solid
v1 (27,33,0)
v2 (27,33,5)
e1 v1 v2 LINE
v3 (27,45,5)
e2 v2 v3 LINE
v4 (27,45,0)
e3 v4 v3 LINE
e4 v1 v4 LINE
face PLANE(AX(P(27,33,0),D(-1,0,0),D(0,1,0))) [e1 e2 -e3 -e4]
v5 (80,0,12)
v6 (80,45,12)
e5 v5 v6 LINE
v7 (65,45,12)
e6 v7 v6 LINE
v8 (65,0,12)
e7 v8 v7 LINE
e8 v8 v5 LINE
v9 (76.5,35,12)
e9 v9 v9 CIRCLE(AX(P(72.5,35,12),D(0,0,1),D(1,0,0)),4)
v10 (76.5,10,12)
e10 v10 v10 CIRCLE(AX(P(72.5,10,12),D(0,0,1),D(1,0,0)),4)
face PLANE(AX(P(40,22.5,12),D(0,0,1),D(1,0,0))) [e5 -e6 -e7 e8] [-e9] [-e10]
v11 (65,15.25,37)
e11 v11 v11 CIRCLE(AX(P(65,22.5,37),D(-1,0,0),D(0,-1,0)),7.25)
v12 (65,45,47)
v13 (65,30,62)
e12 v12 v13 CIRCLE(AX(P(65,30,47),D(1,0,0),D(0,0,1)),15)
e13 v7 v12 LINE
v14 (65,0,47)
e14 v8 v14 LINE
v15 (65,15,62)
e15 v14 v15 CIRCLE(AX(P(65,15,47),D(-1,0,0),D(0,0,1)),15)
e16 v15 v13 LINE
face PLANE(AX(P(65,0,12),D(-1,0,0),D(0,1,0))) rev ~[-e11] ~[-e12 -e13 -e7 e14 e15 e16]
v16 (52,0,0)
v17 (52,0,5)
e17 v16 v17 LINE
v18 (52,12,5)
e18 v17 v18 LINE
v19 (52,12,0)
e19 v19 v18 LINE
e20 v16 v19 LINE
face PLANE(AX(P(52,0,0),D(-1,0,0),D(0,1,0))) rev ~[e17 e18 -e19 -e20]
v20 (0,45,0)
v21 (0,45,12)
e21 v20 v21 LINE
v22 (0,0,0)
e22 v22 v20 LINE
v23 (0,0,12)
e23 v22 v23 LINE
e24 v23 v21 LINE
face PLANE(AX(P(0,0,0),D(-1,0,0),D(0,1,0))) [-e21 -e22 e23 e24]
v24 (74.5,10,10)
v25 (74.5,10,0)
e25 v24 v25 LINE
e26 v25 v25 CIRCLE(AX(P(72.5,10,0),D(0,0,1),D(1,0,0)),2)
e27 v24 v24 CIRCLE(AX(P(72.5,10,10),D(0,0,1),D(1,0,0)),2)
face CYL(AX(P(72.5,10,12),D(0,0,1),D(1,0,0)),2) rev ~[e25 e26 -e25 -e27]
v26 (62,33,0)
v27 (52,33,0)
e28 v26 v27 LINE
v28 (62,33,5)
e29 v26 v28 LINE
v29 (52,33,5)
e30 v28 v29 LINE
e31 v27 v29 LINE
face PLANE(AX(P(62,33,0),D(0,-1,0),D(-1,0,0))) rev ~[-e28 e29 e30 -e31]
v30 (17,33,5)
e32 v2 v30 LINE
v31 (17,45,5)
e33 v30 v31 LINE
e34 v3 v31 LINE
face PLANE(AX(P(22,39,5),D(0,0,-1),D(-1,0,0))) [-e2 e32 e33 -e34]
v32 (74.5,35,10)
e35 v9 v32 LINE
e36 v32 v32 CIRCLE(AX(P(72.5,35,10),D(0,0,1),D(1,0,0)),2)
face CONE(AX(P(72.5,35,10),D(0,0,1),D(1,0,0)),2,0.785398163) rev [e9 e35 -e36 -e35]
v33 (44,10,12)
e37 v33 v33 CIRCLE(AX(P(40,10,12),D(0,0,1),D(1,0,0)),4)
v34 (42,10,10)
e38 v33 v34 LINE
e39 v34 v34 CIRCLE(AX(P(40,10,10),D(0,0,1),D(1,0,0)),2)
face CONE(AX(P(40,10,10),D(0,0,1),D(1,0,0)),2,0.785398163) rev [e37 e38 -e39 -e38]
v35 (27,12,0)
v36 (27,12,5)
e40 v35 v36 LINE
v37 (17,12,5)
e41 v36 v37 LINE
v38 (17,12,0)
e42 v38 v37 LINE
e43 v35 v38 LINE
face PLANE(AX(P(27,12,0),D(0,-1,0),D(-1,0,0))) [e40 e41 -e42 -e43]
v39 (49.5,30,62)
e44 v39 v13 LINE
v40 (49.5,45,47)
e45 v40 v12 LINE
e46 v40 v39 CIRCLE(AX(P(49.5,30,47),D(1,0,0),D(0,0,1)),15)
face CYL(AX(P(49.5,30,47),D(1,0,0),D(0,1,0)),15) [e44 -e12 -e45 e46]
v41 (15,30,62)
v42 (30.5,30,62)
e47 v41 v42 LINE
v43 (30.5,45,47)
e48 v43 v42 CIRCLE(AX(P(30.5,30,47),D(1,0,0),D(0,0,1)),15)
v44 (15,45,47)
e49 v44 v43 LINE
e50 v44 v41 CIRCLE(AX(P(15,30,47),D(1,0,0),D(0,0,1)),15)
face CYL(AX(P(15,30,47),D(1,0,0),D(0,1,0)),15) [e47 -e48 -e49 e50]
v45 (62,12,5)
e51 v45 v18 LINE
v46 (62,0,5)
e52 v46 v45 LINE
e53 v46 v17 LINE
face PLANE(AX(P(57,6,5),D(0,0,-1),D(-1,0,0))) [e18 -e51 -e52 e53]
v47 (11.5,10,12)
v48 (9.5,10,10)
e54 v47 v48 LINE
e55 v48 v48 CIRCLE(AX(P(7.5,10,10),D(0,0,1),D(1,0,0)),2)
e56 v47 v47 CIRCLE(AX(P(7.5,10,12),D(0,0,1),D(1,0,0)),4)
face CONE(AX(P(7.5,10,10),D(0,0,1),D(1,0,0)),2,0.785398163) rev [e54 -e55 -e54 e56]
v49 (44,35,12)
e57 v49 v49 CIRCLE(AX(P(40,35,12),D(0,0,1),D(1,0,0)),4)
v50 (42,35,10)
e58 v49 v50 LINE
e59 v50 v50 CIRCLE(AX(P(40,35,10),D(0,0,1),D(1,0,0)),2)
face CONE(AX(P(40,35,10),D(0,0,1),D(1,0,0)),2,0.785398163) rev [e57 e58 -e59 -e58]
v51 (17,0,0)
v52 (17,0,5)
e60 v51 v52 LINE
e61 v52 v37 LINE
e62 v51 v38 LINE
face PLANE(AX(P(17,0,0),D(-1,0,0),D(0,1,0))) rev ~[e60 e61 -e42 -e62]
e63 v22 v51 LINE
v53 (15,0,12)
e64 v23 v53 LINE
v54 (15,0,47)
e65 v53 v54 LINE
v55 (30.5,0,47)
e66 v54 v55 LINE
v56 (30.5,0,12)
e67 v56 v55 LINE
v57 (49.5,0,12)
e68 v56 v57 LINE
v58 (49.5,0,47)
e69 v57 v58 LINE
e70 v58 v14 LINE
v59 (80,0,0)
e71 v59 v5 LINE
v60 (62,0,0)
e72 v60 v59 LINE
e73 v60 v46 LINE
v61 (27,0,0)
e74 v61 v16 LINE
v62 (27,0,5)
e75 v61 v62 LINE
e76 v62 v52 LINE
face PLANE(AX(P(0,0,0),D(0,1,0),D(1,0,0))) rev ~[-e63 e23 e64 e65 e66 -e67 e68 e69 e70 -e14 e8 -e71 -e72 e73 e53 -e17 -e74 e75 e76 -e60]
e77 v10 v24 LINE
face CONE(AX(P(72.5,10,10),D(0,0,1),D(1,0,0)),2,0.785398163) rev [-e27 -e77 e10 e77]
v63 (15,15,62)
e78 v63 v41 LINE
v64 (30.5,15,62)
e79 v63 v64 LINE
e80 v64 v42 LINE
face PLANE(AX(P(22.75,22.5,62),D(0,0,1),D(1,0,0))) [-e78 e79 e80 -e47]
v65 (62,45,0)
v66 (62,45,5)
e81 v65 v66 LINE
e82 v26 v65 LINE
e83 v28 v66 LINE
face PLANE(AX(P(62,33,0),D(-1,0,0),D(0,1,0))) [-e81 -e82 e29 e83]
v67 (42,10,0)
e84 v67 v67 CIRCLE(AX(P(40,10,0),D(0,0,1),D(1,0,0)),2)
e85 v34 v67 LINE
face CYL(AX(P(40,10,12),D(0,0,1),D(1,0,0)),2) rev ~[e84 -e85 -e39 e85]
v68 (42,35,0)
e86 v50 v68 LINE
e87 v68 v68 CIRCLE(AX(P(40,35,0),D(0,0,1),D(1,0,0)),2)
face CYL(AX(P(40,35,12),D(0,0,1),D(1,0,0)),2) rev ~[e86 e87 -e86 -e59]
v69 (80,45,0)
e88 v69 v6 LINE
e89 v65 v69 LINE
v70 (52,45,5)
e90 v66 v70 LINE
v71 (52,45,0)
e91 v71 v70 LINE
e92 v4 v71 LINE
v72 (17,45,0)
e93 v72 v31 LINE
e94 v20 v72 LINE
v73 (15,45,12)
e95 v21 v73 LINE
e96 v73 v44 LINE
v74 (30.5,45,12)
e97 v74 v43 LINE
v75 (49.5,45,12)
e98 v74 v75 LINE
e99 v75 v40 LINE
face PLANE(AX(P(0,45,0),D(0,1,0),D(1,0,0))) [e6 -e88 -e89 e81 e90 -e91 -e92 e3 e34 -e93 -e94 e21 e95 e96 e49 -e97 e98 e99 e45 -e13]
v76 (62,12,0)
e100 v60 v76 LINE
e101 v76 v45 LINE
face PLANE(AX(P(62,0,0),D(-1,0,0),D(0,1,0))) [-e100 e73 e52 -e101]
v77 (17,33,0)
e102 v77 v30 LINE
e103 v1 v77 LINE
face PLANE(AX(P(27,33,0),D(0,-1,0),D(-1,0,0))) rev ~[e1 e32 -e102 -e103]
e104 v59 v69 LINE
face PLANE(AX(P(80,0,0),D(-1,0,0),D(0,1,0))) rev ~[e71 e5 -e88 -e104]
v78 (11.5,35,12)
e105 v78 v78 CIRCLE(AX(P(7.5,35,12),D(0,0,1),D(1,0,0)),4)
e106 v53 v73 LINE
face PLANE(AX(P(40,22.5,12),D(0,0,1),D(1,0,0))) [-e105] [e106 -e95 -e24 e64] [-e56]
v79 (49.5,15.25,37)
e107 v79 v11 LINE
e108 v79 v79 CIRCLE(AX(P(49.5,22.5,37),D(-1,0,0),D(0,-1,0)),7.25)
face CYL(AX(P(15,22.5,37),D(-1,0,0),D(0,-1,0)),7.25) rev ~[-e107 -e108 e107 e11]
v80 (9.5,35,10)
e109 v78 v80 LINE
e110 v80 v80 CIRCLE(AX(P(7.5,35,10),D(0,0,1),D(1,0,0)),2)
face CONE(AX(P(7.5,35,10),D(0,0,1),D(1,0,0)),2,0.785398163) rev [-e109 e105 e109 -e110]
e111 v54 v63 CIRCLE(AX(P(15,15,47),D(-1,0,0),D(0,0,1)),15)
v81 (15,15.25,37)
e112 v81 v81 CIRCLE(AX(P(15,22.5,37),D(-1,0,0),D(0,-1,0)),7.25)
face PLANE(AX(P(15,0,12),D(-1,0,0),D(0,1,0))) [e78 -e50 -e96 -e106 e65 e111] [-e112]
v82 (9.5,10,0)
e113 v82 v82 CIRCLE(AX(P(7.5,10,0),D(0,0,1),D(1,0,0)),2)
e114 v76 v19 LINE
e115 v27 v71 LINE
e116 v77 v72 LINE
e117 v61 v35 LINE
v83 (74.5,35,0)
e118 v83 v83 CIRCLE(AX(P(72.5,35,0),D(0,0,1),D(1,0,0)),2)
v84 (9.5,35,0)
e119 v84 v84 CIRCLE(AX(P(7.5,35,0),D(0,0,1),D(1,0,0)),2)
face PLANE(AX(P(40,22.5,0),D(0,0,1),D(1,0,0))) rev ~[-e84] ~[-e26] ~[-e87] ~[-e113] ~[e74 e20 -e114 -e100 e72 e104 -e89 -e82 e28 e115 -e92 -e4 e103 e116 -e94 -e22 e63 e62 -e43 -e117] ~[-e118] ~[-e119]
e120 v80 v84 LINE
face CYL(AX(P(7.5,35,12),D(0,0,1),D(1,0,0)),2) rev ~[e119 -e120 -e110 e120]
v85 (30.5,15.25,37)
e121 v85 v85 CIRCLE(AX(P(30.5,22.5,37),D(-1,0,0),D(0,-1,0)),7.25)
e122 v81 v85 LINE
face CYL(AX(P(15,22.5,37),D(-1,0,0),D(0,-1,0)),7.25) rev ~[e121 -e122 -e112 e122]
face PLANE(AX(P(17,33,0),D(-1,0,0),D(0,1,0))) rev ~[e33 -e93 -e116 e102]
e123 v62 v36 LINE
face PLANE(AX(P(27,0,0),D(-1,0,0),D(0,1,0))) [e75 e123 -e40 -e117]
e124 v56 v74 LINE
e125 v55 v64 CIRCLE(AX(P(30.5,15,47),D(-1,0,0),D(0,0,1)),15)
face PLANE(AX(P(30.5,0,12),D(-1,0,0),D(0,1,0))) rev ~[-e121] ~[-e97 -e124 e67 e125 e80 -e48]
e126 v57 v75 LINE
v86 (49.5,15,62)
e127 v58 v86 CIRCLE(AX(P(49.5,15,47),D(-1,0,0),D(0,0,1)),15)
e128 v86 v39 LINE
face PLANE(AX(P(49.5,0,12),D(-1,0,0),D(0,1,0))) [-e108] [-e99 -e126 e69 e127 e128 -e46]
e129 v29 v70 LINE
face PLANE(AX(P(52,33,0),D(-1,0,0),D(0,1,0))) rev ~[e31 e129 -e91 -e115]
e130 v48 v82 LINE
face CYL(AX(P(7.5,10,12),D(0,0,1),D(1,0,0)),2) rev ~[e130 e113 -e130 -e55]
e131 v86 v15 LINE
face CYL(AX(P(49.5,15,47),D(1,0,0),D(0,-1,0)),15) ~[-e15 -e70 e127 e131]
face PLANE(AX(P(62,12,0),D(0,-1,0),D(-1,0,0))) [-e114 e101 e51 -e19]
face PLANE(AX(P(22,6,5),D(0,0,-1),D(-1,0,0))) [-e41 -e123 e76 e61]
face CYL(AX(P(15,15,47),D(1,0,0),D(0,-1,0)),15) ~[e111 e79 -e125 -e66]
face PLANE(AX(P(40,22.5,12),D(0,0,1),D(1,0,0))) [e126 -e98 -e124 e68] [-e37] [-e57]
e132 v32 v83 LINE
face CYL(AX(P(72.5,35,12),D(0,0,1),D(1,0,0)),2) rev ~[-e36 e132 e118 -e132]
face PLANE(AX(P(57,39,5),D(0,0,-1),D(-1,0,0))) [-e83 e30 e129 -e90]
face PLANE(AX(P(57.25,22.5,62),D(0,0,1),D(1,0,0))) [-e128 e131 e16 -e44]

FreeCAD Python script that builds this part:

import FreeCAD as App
import Part
import Sketcher

V = App.Vector


def edges_at(feature, points):
    """Names of the edges that pass closest to the given points."""
    edges = feature.Shape.Edges
    near = lambda p: min(range(len(edges)), key=lambda i: edges[i].distToShape(Part.Vertex(*p))[0])
    return sorted({f"Edge{near(p) + 1}" for p in points})


def add_polygon(sketch, points):
    """Adds a closed chain of lines whose ends are joined by coincident constraints."""
    first, n = sketch.GeometryCount, len(points)
    for a, b in zip(points, points[1:] + points[:1]):
        sketch.addGeometry(Part.LineSegment(App.Vector(*a, 0), App.Vector(*b, 0)), False)
    for i in range(n):
        sketch.addConstraint(Sketcher.Constraint("Coincident", first + i, 2, first + (i + 1) % n, 1))

doc = App.newDocument("Part")
body = doc.addObject("PartDesign::Body", "Body")

sketch1 = body.newObject("Sketcher::SketchObject", "Sketch")
sketch1.AttachmentSupport = (doc.getObject("XY_Plane"), [""])
sketch1.MapMode = "FlatFace"
add_polygon(sketch1, [(0, 45), (0, 0), (80, 0), (80, 45)])
sketch1.addConstraint(Sketcher.Constraint("Vertical", 0))
sketch1.addConstraint(Sketcher.Constraint("Horizontal", 1))
sketch1.addConstraint(Sketcher.Constraint("Vertical", 2))
sketch1.addConstraint(Sketcher.Constraint("Horizontal", 3))
sketch1.addConstraint(Sketcher.Constraint("Coincident", 0, 2, -1, 1))
sketch1.addConstraint(Sketcher.Constraint("DistanceX", 1, 1, 1, 2, 80.0))
sketch1.addConstraint(Sketcher.Constraint("DistanceY", 0, 2, 0, 1, 45.0))
pad1 = body.newObject("PartDesign::Pad", "Pad")
pad1.Profile = sketch1
pad1.Length = 12

sketch2 = body.newObject("Sketcher::SketchObject", "Sketch001")
sketch2.AttachmentSupport = (doc.getObject("XY_Plane"), [""])
sketch2.MapMode = "FlatFace"
sketch2.AttachmentOffset = App.Placement(V(0, 0, 12), App.Rotation())
add_polygon(sketch2, [(15, 45), (15, 0), (30, 0), (30, 45)])
add_polygon(sketch2, [(50, 45), (50, 0), (65, 0), (65, 45)])
sketch2.addConstraint(Sketcher.Constraint("Vertical", 0))
sketch2.addConstraint(Sketcher.Constraint("Horizontal", 1))
sketch2.addConstraint(Sketcher.Constraint("Vertical", 2))
sketch2.addConstraint(Sketcher.Constraint("Horizontal", 3))
sketch2.addConstraint(Sketcher.Constraint("Vertical", 4))
sketch2.addConstraint(Sketcher.Constraint("Horizontal", 5))
sketch2.addConstraint(Sketcher.Constraint("Vertical", 6))
sketch2.addConstraint(Sketcher.Constraint("Horizontal", 7))
sketch2.addConstraint(Sketcher.Constraint("PointOnObject", 0, 2, -1))
sketch2.addConstraint(Sketcher.Constraint("PointOnObject", 4, 2, -1))
sketch2.addConstraint(Sketcher.Constraint("Horizontal", 3, 2, 6, 2))
sketch2.addConstraint(Sketcher.Constraint("Equal", 3, 5))
sketch2.addConstraint(Sketcher.Constraint("DistanceY", 0, 2, 0, 1, 45.0))
sketch2.addConstraint(Sketcher.Constraint("DistanceX", 1, 1, 1, 2, 15.5))
sketch2.addConstraint(Sketcher.Constraint("DistanceX", -1, 1, 0, 2, 15.0))
sketch2.addConstraint(Sketcher.Constraint("DistanceX", -1, 1, 5, 2, 65.0))
pad2 = body.newObject("PartDesign::Pad", "Pad001")
pad2.Profile = sketch2
pad2.Length = 50

sketch3 = body.newObject("Sketcher::SketchObject", "Sketch002")
sketch3.AttachmentSupport = (doc.getObject("YZ_Plane"), [""])
sketch3.MapMode = "FlatFace"
sketch3.AttachmentOffset = App.Placement(V(0, 0, 15), App.Rotation())
sketch3.addGeometry(Part.Circle(V(22, 37, 0), V(0, 0, 1), 7), False)
sketch3.addConstraint(Sketcher.Constraint("Diameter", 0, 14.5))
sketch3.addConstraint(Sketcher.Constraint("DistanceY", -1, 1, 0, 3, 37.0))
sketch3.addConstraint(Sketcher.Constraint("DistanceX", -1, 1, 0, 3, 22.5))
pocket1 = body.newObject("PartDesign::Pocket", "Pocket")
pocket1.Profile = sketch3
pocket1.Length = 50
pocket1.Reversed = True
doc.recompute()

fillet = body.newObject("PartDesign::Fillet", "Fillet")
fillet.Base = (pocket1, edges_at(pocket1, [
    (22.75, 0, 62),
    (22.75, 45, 62),
    (57.25, 0, 62),
    (57.25, 45, 62),
]))
fillet.Radius = 15

sketch4 = body.newObject("Sketcher::SketchObject", "Sketch003")
sketch4.AttachmentSupport = (doc.getObject("XY_Plane"), [""])
sketch4.MapMode = "FlatFace"
sketch4.AttachmentOffset = App.Placement(V(0, 0, 12), App.Rotation())
sketch4.addGeometry(Part.Circle(V(7.5, 35, 0), V(0, 0, 1), 2), False)
sketch4.addGeometry(Part.Circle(V(7.5, 10, 0), V(0, 0, 1), 2), False)
sketch4.addGeometry(Part.Circle(V(40, 35, 0), V(0, 0, 1), 2), False)
sketch4.addGeometry(Part.Circle(V(40, 10, 0), V(0, 0, 1), 2), False)
sketch4.addGeometry(Part.Circle(V(72.5, 35, 0), V(0, 0, 1), 2), False)
sketch4.addGeometry(Part.Circle(V(72.5, 10, 0), V(0, 0, 1), 2), False)
sketch4.addConstraint(Sketcher.Constraint("Equal", 0, 1))
sketch4.addConstraint(Sketcher.Constraint("Equal", 1, 2))
sketch4.addConstraint(Sketcher.Constraint("Equal", 2, 3))
sketch4.addConstraint(Sketcher.Constraint("Equal", 3, 4))
sketch4.addConstraint(Sketcher.Constraint("Equal", 4, 5))
sketch4.addConstraint(Sketcher.Constraint("Horizontal", 0, 3, 2, 3))
sketch4.addConstraint(Sketcher.Constraint("Horizontal", 1, 3, 3, 3))
sketch4.addConstraint(Sketcher.Constraint("Horizontal", 2, 3, 4, 3))
sketch4.addConstraint(Sketcher.Constraint("Horizontal", 3, 3, 5, 3))
sketch4.addConstraint(Sketcher.Constraint("Vertical", 0, 3, 1, 3))
sketch4.addConstraint(Sketcher.Constraint("Vertical", 2, 3, 3, 3))
sketch4.addConstraint(Sketcher.Constraint("Vertical", 4, 3, 5, 3))
sketch4.addConstraint(Sketcher.Constraint("Diameter", 0, 4.0))
sketch4.addConstraint(Sketcher.Constraint("DistanceY", -1, 1, 0, 3, 35.0))
sketch4.addConstraint(Sketcher.Constraint("DistanceY", -1, 1, 1, 3, 10.0))
sketch4.addConstraint(Sketcher.Constraint("DistanceX", -1, 1, 2, 3, 40.0))
sketch4.addConstraint(Sketcher.Constraint("DistanceX", 0, 3, 4, 3, 65.0))
sketch4.addConstraint(Sketcher.Constraint("DistanceX", -1, 1, 0, 3, 7.5))
pocket2 = body.newObject("PartDesign::Pocket", "Pocket001")
pocket2.Profile = sketch4
pocket2.Length = 50
doc.recompute()

chamfer = body.newObject("PartDesign::Chamfer", "Chamfer")
chamfer.Base = (pocket2, edges_at(pocket2, [
    (5.5, 35, 12),
    (70.5, 10, 12),
    (70.5, 35, 12),
    (38, 10, 12),
    (38, 35, 12),
    (5.5, 10, 12),
]))
chamfer.Size = 2

sketch5 = body.newObject("Sketcher::SketchObject", "Sketch004")
sketch5.AttachmentSupport = (doc.getObject("XY_Plane"), [""])
sketch5.MapMode = "FlatFace"
add_polygon(sketch5, [(27, 12), (27, 0), (17, 0), (17, 12)])
add_polygon(sketch5, [(62, 12), (62, 0), (52, 0), (52, 12)])
add_polygon(sketch5, [(62, 45), (62, 33), (52, 33), (52, 45)])
add_polygon(sketch5, [(27, 45), (27, 33), (17, 33), (17, 45)])
sketch5.addConstraint(Sketcher.Constraint("Vertical", 0))
sketch5.addConstraint(Sketcher.Constraint("Horizontal", 1))
sketch5.addConstraint(Sketcher.Constraint("Vertical", 2))
sketch5.addConstraint(Sketcher.Constraint("Horizontal", 3))
sketch5.addConstraint(Sketcher.Constraint("Vertical", 4))
sketch5.addConstraint(Sketcher.Constraint("Horizontal", 5))
sketch5.addConstraint(Sketcher.Constraint("Vertical", 6))
sketch5.addConstraint(Sketcher.Constraint("Horizontal", 7))
sketch5.addConstraint(Sketcher.Constraint("Vertical", 8))
sketch5.addConstraint(Sketcher.Constraint("Horizontal", 9))
sketch5.addConstraint(Sketcher.Constraint("Vertical", 10))
sketch5.addConstraint(Sketcher.Constraint("Horizontal", 11))
sketch5.addConstraint(Sketcher.Constraint("Vertical", 12))
sketch5.addConstraint(Sketcher.Constraint("Horizontal", 13))
sketch5.addConstraint(Sketcher.Constraint("Vertical", 14))
sketch5.addConstraint(Sketcher.Constraint("Horizontal", 15))
sketch5.addConstraint(Sketcher.Constraint("PointOnObject", 0, 2, -1))
sketch5.addConstraint(Sketcher.Constraint("PointOnObject", 4, 2, -1))
sketch5.addConstraint(Sketcher.Constraint("Horizontal", 3, 2, 6, 2))
sketch5.addConstraint(Sketcher.Constraint("Horizontal", 9, 2, 12, 2))
sketch5.addConstraint(Sketcher.Constraint("Horizontal", 11, 2, 14, 2))
sketch5.addConstraint(Sketcher.Constraint("Vertical", 7, 2, 8, 2))
sketch5.addConstraint(Sketcher.Constraint("Vertical", 6, 2, 9, 2))
sketch5.addConstraint(Sketcher.Constraint("Vertical", 3, 2, 12, 2))
sketch5.addConstraint(Sketcher.Constraint("Vertical", 2, 2, 13, 2))
sketch5.addConstraint(Sketcher.Constraint("Equal", 3, 5))
sketch5.addConstraint(Sketcher.Constraint("Equal", 6, 8))
sketch5.addConstraint(Sketcher.Constraint("DistanceX", 1, 2, 1, 1, 10.0))
sketch5.addConstraint(Sketcher.Constraint("DistanceY", 0, 2, 0, 1, 12.0))
sketch5.addConstraint(Sketcher.Constraint("DistanceX", -1, 1, 0, 2, 27.0))
sketch5.addConstraint(Sketcher.Constraint("DistanceX", -1, 1, 4, 2, 62.0))
sketch5.addConstraint(Sketcher.Constraint("DistanceY", -1, 1, 8, 2, 33.0))
pocket3 = body.newObject("PartDesign::Pocket", "Pocket002")
pocket3.Profile = sketch5
pocket3.Length = 5
pocket3.Reversed = True

doc.recompute()
